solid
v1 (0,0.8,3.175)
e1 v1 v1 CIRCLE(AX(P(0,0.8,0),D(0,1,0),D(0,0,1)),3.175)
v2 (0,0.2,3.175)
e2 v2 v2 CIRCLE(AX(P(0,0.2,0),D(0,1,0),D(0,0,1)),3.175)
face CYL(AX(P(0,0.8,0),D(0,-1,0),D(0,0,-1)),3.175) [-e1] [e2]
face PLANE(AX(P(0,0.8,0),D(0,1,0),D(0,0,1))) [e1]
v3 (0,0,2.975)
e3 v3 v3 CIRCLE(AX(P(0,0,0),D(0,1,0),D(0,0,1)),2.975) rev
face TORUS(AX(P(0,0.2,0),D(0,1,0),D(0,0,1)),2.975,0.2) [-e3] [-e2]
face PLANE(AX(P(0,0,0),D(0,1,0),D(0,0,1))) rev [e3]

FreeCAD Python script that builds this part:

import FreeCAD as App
import Part
import Sketcher
from FreeCAD import Vector


def edges_at(feature, points):
    """Names of the edges that pass closest to the given points."""
    edges = feature.Shape.Edges
    near = lambda p: min(range(len(edges)), key=lambda i: edges[i].distToShape(Part.Vertex(*p))[0])
    return sorted({f"Edge{near(p) + 1}" for p in points})

doc = App.newDocument("Part")
body = doc.addObject("PartDesign::Body", "Body")

sketch1 = body.newObject("Sketcher::SketchObject", "Sketch")
sketch1.AttachmentSupport = (doc.getObject("XZ_Plane"), [""])
sketch1.MapMode = "FlatFace"
sketch1.addGeometry(Part.Circle(Vector(0, 0, 0), Vector(0, 0, 1), 3.2), False)
sketch1.addConstraint([
    Sketcher.Constraint("Coincident", 0, 3, -1, 1),
    Sketcher.Constraint("Diameter", 0, 6.35),
])
pad1 = body.newObject("PartDesign::Pad", "Pad")
pad1.Profile = sketch1
pad1.Length = 0.8
pad1.Reversed = True
doc.recompute()

fillet = body.newObject("PartDesign::Fillet", "Fillet")
fillet.Base = (pad1, edges_at(pad1, [(-3.175, 0, 0)]))
fillet.Radius = 0.2

doc.recompute()
